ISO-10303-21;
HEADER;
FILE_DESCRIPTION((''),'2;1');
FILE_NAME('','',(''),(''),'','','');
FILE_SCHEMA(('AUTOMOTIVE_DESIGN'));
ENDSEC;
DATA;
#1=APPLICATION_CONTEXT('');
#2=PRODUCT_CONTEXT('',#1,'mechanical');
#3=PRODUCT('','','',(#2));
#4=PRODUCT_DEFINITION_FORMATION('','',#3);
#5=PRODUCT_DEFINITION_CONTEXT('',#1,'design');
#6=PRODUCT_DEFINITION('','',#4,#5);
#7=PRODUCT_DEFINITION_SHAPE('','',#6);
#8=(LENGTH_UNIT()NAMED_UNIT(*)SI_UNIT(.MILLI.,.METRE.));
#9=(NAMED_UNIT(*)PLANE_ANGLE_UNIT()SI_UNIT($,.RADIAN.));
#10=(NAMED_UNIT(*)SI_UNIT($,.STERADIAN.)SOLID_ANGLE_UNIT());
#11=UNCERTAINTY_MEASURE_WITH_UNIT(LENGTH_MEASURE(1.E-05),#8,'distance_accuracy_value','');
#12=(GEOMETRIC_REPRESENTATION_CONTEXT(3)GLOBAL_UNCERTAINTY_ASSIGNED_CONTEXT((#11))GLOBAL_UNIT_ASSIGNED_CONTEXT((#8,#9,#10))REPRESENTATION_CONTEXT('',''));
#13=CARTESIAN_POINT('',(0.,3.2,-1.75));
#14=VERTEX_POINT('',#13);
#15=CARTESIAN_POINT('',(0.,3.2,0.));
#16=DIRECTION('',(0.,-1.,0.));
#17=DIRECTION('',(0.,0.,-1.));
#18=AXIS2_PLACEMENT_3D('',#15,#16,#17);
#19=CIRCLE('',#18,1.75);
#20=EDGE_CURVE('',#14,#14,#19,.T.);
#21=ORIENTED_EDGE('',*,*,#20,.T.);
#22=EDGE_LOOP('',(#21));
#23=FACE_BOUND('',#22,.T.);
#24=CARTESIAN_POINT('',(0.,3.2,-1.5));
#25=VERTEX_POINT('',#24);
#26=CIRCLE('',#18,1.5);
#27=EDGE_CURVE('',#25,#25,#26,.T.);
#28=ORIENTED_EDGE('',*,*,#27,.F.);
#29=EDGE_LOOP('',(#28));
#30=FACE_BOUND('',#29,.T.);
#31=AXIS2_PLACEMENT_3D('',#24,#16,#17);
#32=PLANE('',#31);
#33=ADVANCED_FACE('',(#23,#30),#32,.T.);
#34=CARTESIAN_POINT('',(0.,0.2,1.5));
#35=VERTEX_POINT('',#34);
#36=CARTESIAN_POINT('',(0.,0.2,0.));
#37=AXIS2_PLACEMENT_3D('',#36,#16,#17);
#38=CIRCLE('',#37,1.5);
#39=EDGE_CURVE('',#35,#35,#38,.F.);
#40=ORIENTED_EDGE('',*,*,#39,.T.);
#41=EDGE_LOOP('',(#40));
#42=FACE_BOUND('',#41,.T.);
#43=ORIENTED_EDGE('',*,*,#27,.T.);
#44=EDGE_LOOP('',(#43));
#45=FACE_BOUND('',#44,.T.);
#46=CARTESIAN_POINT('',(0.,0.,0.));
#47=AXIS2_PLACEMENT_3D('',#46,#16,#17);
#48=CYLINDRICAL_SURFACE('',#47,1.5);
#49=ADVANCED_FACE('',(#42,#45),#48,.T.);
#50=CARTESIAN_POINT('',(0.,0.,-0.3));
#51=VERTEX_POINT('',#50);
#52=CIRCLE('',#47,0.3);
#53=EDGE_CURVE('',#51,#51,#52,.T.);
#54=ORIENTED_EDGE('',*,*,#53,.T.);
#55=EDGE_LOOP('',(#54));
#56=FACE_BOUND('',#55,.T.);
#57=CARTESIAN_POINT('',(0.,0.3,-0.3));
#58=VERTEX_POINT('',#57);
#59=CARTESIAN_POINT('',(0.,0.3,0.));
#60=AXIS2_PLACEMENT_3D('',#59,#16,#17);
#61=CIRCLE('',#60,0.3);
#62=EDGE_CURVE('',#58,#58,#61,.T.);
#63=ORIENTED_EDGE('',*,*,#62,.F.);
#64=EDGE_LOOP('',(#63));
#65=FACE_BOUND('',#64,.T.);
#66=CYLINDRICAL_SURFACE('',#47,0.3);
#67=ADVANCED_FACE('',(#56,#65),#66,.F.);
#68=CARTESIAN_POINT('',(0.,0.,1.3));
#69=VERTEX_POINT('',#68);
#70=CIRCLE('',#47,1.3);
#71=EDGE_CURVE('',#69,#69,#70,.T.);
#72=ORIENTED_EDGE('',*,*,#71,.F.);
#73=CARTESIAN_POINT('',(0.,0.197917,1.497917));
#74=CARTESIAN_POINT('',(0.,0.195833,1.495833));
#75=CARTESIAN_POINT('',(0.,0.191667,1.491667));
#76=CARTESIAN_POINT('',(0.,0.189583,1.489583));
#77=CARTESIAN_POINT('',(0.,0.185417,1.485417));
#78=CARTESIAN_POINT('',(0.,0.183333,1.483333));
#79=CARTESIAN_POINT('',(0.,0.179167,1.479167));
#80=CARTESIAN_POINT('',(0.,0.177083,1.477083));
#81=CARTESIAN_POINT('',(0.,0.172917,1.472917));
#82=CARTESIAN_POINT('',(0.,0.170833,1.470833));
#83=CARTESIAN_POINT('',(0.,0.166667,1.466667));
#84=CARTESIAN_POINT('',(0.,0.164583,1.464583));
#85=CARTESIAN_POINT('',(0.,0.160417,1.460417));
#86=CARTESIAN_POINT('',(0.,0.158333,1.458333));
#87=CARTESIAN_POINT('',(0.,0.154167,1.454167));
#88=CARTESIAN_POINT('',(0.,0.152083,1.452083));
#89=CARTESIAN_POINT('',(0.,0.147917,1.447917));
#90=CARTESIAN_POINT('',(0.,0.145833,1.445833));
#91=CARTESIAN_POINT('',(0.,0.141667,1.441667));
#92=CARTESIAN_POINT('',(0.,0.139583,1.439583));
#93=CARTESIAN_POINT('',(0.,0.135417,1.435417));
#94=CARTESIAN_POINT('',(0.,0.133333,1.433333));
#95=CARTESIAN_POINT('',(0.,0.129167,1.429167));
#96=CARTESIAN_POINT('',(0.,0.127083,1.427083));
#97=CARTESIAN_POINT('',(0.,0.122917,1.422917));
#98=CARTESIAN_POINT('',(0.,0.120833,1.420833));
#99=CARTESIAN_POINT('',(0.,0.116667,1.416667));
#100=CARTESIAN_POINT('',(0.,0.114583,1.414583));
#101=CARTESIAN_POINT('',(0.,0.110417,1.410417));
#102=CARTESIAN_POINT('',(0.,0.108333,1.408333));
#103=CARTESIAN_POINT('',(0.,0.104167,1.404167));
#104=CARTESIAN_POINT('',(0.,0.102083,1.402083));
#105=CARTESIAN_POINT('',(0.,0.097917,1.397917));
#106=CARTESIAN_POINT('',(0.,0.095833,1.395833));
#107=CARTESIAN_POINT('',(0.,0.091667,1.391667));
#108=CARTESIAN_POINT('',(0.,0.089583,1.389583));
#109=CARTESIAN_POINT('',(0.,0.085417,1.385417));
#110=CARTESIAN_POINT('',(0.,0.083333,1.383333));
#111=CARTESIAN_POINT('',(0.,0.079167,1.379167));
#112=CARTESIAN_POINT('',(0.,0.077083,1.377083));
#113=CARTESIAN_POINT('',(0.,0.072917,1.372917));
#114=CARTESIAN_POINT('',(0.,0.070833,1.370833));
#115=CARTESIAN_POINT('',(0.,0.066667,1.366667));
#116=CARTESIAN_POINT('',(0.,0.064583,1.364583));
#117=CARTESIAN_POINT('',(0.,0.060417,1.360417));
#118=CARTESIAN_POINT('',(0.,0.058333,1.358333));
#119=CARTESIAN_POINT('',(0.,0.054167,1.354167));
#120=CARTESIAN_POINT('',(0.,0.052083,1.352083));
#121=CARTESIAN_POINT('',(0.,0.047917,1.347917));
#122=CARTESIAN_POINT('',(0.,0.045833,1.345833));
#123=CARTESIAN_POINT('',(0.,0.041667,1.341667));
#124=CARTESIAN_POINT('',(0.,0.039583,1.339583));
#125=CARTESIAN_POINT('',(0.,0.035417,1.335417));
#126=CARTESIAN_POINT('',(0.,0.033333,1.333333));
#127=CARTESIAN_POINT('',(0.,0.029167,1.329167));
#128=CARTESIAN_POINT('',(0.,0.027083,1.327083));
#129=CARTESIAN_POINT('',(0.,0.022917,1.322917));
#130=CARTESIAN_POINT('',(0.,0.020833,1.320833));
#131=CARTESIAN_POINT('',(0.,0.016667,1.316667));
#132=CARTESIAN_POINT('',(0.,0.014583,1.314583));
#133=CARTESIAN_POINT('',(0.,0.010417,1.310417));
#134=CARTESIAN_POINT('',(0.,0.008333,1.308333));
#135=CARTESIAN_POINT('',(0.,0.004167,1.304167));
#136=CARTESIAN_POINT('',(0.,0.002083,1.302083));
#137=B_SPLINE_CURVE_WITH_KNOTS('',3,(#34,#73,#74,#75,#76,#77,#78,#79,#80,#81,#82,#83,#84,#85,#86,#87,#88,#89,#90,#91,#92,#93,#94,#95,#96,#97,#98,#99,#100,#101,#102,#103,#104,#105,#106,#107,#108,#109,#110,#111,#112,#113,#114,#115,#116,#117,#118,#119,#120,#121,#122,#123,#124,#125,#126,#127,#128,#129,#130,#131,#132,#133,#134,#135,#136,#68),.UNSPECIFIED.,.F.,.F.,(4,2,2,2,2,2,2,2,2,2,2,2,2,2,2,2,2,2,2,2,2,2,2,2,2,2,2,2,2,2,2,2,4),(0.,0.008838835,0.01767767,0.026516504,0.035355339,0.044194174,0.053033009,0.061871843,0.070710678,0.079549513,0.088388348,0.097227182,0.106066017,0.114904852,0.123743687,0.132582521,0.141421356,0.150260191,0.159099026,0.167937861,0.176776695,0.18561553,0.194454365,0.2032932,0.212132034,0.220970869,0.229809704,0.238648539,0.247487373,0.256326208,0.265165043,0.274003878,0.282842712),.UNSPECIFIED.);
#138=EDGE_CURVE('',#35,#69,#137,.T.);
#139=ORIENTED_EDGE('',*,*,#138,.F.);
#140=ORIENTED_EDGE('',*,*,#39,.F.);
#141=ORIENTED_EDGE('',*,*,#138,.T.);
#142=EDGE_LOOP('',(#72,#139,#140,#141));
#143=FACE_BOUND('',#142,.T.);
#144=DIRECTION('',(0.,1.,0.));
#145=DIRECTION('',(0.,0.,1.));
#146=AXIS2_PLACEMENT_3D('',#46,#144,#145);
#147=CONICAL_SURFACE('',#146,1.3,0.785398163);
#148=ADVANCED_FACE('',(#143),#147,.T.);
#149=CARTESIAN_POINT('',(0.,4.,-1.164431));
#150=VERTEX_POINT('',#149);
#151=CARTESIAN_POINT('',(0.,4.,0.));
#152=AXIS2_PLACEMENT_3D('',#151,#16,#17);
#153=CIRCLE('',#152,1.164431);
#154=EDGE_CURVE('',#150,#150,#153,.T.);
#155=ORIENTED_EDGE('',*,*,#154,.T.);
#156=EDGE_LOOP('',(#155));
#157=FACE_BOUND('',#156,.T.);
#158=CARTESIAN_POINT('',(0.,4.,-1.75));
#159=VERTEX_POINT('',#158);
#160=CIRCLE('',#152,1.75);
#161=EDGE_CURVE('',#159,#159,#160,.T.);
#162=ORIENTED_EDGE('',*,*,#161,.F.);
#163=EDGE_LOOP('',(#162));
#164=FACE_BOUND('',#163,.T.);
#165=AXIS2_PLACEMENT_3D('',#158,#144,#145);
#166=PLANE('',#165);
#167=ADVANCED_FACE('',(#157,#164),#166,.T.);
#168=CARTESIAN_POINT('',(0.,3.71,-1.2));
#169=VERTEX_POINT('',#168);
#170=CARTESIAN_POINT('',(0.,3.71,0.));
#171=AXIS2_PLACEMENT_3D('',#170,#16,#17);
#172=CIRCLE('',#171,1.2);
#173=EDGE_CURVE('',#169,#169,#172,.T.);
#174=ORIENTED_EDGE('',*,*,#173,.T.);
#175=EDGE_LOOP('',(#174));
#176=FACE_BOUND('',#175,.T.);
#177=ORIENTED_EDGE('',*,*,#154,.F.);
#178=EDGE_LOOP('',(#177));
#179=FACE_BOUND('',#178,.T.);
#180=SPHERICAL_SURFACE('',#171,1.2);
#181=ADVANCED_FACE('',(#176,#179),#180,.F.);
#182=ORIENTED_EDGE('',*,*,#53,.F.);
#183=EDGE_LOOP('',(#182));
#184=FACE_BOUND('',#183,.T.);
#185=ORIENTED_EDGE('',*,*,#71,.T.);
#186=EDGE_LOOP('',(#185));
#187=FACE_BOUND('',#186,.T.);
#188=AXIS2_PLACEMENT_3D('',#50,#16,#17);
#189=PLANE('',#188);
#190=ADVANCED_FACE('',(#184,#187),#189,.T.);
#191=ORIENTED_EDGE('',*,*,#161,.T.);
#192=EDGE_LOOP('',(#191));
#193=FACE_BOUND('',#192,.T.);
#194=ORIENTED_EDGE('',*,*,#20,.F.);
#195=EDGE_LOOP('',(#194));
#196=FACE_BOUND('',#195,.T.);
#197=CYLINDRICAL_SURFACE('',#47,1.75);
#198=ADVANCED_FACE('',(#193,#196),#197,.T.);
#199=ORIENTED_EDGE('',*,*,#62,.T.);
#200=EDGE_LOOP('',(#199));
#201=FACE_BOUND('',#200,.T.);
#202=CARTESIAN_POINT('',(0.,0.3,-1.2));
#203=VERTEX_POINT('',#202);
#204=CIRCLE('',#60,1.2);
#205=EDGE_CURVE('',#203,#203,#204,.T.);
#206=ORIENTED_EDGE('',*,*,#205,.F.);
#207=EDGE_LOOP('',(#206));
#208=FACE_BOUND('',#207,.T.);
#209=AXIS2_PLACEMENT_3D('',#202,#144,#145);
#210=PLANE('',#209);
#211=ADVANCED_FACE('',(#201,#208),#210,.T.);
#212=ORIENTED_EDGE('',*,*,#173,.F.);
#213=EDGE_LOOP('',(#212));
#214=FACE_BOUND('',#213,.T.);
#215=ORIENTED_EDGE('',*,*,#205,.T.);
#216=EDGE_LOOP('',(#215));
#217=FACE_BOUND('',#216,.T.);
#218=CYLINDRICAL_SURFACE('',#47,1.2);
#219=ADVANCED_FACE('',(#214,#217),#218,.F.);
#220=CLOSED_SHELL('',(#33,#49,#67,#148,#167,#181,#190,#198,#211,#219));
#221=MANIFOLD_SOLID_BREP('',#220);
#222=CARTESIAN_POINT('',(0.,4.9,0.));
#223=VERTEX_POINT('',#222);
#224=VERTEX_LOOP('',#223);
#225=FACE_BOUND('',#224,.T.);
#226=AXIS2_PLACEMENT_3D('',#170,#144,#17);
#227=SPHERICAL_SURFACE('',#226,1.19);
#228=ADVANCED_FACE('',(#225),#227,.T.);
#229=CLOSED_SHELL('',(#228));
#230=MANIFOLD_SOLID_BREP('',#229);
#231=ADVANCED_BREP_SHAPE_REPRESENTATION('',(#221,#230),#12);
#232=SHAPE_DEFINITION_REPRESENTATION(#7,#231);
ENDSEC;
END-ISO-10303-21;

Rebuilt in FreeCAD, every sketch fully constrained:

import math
import FreeCAD as App
import Part
import Sketcher
Q = App.Units.Quantity


def edges_at(feature, points):
    """Names of the edges that pass closest to the given points."""
    edges = feature.Shape.Edges
    near = lambda p: min(range(len(edges)), key=lambda i: edges[i].distToShape(Part.Vertex(*p))[0])
    return sorted({f"Edge{near(p) + 1}" for p in points})

doc = App.newDocument("Part")
body = doc.addObject("PartDesign::Body", "Body")

sketch1 = body.newObject("Sketcher::SketchObject", "Sketch")
sketch1.AttachmentSupport = (doc.getObject("YZ_Plane"), [""])
sketch1.MapMode = "FlatFace"
sketch1.addGeometry([
    Part.LineSegment(App.Vector(0, -0.3, 0), App.Vector(0, -1.5, 0)),
    Part.LineSegment(App.Vector(0, -1.5, 0), App.Vector(3.2, -1.5, 0)),
    Part.LineSegment(App.Vector(3.2, -1.5, 0), App.Vector(3.2, -1.75, 0)),
    Part.LineSegment(App.Vector(3.2, -1.75, 0), App.Vector(4, -1.75, 0)),
    Part.LineSegment(App.Vector(4, -1.75, 0), App.Vector(4, -1.16, 0)),
    Part.ArcOfCircle(Part.Circle(App.Vector(3.71, 0, 0), App.Vector(0, 0, 1), 1.2), math.radians(-90), math.radians(-76.02)),
    Part.LineSegment(App.Vector(3.71, -1.2, 0), App.Vector(0.3, -1.2, 0)),
    Part.LineSegment(App.Vector(0.3, -1.2, 0), App.Vector(0.3, -0.3, 0)),
    Part.LineSegment(App.Vector(0.3, -0.3, 0), App.Vector(0, -0.3, 0)),
], False)
sketch1.addConstraint([
    Sketcher.Constraint("Coincident", 0, 2, 1, 1),
    Sketcher.Constraint("Coincident", 1, 2, 2, 1),
    Sketcher.Constraint("Coincident", 2, 2, 3, 1),
    Sketcher.Constraint("Coincident", 3, 2, 4, 1),
    Sketcher.Constraint("Coincident", 4, 2, 5, 2),
    Sketcher.Constraint("Tangent", 5, 1, 6, 1),
    Sketcher.Constraint("Coincident", 6, 2, 7, 1),
    Sketcher.Constraint("Coincident", 7, 2, 8, 1),
    Sketcher.Constraint("Coincident", 8, 2, 0, 1),
    Sketcher.Constraint("Vertical", 0),
    Sketcher.Constraint("Horizontal", 1),
    Sketcher.Constraint("Vertical", 2),
    Sketcher.Constraint("Horizontal", 3),
    Sketcher.Constraint("Vertical", 4),
    Sketcher.Constraint("Horizontal", 6),
    Sketcher.Constraint("Vertical", 7),
    Sketcher.Constraint("Horizontal", 8),
    Sketcher.Constraint("PointOnObject", 5, 3, -1),
    Sketcher.Constraint("PointOnObject", 0, 2, -2),
    Sketcher.Constraint("Radius", 5, Q("1.2 mm")),
    Sketcher.Constraint("DistanceX", 1, 1, 1, 2, Q("3.2 mm")),
    Sketcher.Constraint("DistanceX", 3, 1, 3, 2, Q("0.8 mm")),
    Sketcher.Constraint("DistanceX", 8, 2, 8, 1, Q("0.3 mm")),
    Sketcher.Constraint("DistanceY", 0, 2, 0, 1, Q("1.2 mm")),
    Sketcher.Constraint("DistanceY", 7, 1, 7, 2, Q("0.9 mm")),
    Sketcher.Constraint("DistanceX", 6, 2, 6, 1, Q("3.41 mm")),
    Sketcher.Constraint("DistanceY", 2, 2, 2, 1, Q("0.25 mm")),
])
revolution = body.newObject("PartDesign::Revolution", "Revolution")
revolution.Profile = sketch1
revolution.ReferenceAxis = (sketch1, ["H_Axis"])
revolution.Angle = 360
doc.recompute()

chamfer = body.newObject("PartDesign::Chamfer", "Chamfer")
chamfer.Base = (revolution, edges_at(revolution, [(0, 0, 1.5)]))
chamfer.Size = 0.2
body2 = doc.addObject("PartDesign::Body", "Body001")

sketch2 = body2.newObject("Sketcher::SketchObject", "Sketch001")
sketch2.AttachmentSupport = (doc.getObject("YZ_Plane001"), [""])
sketch2.MapMode = "FlatFace"
sketch2.addGeometry([
    Part.LineSegment(App.Vector(4.9, 0, 0), App.Vector(2.5, 0, 0)),
    Part.ArcOfCircle(Part.Circle(App.Vector(3.7, 0, 0), App.Vector(0, 0, 1), 1.2), math.radians(180), math.radians(360)),
], False)
sketch2.addConstraint([
    Sketcher.Constraint("Coincident", 0, 1, 1, 2),
    Sketcher.Constraint("Coincident", 1, 1, 0, 2),
    Sketcher.Constraint("Horizontal", 0),
    Sketcher.Constraint("PointOnObject", 1, 3, -1),
    Sketcher.Constraint("PointOnObject", 0, 1, -1),
    Sketcher.Constraint("Radius", 1, Q("1.19 mm")),
    Sketcher.Constraint("DistanceX", -1, 1, 0, 1, Q("4.9 mm")),
])
revolution2 = body2.newObject("PartDesign::Revolution", "Revolution001")
revolution2.Profile = sketch2
revolution2.ReferenceAxis = (sketch2, ["H_Axis"])
revolution2.Angle = 360

doc.recompute()
